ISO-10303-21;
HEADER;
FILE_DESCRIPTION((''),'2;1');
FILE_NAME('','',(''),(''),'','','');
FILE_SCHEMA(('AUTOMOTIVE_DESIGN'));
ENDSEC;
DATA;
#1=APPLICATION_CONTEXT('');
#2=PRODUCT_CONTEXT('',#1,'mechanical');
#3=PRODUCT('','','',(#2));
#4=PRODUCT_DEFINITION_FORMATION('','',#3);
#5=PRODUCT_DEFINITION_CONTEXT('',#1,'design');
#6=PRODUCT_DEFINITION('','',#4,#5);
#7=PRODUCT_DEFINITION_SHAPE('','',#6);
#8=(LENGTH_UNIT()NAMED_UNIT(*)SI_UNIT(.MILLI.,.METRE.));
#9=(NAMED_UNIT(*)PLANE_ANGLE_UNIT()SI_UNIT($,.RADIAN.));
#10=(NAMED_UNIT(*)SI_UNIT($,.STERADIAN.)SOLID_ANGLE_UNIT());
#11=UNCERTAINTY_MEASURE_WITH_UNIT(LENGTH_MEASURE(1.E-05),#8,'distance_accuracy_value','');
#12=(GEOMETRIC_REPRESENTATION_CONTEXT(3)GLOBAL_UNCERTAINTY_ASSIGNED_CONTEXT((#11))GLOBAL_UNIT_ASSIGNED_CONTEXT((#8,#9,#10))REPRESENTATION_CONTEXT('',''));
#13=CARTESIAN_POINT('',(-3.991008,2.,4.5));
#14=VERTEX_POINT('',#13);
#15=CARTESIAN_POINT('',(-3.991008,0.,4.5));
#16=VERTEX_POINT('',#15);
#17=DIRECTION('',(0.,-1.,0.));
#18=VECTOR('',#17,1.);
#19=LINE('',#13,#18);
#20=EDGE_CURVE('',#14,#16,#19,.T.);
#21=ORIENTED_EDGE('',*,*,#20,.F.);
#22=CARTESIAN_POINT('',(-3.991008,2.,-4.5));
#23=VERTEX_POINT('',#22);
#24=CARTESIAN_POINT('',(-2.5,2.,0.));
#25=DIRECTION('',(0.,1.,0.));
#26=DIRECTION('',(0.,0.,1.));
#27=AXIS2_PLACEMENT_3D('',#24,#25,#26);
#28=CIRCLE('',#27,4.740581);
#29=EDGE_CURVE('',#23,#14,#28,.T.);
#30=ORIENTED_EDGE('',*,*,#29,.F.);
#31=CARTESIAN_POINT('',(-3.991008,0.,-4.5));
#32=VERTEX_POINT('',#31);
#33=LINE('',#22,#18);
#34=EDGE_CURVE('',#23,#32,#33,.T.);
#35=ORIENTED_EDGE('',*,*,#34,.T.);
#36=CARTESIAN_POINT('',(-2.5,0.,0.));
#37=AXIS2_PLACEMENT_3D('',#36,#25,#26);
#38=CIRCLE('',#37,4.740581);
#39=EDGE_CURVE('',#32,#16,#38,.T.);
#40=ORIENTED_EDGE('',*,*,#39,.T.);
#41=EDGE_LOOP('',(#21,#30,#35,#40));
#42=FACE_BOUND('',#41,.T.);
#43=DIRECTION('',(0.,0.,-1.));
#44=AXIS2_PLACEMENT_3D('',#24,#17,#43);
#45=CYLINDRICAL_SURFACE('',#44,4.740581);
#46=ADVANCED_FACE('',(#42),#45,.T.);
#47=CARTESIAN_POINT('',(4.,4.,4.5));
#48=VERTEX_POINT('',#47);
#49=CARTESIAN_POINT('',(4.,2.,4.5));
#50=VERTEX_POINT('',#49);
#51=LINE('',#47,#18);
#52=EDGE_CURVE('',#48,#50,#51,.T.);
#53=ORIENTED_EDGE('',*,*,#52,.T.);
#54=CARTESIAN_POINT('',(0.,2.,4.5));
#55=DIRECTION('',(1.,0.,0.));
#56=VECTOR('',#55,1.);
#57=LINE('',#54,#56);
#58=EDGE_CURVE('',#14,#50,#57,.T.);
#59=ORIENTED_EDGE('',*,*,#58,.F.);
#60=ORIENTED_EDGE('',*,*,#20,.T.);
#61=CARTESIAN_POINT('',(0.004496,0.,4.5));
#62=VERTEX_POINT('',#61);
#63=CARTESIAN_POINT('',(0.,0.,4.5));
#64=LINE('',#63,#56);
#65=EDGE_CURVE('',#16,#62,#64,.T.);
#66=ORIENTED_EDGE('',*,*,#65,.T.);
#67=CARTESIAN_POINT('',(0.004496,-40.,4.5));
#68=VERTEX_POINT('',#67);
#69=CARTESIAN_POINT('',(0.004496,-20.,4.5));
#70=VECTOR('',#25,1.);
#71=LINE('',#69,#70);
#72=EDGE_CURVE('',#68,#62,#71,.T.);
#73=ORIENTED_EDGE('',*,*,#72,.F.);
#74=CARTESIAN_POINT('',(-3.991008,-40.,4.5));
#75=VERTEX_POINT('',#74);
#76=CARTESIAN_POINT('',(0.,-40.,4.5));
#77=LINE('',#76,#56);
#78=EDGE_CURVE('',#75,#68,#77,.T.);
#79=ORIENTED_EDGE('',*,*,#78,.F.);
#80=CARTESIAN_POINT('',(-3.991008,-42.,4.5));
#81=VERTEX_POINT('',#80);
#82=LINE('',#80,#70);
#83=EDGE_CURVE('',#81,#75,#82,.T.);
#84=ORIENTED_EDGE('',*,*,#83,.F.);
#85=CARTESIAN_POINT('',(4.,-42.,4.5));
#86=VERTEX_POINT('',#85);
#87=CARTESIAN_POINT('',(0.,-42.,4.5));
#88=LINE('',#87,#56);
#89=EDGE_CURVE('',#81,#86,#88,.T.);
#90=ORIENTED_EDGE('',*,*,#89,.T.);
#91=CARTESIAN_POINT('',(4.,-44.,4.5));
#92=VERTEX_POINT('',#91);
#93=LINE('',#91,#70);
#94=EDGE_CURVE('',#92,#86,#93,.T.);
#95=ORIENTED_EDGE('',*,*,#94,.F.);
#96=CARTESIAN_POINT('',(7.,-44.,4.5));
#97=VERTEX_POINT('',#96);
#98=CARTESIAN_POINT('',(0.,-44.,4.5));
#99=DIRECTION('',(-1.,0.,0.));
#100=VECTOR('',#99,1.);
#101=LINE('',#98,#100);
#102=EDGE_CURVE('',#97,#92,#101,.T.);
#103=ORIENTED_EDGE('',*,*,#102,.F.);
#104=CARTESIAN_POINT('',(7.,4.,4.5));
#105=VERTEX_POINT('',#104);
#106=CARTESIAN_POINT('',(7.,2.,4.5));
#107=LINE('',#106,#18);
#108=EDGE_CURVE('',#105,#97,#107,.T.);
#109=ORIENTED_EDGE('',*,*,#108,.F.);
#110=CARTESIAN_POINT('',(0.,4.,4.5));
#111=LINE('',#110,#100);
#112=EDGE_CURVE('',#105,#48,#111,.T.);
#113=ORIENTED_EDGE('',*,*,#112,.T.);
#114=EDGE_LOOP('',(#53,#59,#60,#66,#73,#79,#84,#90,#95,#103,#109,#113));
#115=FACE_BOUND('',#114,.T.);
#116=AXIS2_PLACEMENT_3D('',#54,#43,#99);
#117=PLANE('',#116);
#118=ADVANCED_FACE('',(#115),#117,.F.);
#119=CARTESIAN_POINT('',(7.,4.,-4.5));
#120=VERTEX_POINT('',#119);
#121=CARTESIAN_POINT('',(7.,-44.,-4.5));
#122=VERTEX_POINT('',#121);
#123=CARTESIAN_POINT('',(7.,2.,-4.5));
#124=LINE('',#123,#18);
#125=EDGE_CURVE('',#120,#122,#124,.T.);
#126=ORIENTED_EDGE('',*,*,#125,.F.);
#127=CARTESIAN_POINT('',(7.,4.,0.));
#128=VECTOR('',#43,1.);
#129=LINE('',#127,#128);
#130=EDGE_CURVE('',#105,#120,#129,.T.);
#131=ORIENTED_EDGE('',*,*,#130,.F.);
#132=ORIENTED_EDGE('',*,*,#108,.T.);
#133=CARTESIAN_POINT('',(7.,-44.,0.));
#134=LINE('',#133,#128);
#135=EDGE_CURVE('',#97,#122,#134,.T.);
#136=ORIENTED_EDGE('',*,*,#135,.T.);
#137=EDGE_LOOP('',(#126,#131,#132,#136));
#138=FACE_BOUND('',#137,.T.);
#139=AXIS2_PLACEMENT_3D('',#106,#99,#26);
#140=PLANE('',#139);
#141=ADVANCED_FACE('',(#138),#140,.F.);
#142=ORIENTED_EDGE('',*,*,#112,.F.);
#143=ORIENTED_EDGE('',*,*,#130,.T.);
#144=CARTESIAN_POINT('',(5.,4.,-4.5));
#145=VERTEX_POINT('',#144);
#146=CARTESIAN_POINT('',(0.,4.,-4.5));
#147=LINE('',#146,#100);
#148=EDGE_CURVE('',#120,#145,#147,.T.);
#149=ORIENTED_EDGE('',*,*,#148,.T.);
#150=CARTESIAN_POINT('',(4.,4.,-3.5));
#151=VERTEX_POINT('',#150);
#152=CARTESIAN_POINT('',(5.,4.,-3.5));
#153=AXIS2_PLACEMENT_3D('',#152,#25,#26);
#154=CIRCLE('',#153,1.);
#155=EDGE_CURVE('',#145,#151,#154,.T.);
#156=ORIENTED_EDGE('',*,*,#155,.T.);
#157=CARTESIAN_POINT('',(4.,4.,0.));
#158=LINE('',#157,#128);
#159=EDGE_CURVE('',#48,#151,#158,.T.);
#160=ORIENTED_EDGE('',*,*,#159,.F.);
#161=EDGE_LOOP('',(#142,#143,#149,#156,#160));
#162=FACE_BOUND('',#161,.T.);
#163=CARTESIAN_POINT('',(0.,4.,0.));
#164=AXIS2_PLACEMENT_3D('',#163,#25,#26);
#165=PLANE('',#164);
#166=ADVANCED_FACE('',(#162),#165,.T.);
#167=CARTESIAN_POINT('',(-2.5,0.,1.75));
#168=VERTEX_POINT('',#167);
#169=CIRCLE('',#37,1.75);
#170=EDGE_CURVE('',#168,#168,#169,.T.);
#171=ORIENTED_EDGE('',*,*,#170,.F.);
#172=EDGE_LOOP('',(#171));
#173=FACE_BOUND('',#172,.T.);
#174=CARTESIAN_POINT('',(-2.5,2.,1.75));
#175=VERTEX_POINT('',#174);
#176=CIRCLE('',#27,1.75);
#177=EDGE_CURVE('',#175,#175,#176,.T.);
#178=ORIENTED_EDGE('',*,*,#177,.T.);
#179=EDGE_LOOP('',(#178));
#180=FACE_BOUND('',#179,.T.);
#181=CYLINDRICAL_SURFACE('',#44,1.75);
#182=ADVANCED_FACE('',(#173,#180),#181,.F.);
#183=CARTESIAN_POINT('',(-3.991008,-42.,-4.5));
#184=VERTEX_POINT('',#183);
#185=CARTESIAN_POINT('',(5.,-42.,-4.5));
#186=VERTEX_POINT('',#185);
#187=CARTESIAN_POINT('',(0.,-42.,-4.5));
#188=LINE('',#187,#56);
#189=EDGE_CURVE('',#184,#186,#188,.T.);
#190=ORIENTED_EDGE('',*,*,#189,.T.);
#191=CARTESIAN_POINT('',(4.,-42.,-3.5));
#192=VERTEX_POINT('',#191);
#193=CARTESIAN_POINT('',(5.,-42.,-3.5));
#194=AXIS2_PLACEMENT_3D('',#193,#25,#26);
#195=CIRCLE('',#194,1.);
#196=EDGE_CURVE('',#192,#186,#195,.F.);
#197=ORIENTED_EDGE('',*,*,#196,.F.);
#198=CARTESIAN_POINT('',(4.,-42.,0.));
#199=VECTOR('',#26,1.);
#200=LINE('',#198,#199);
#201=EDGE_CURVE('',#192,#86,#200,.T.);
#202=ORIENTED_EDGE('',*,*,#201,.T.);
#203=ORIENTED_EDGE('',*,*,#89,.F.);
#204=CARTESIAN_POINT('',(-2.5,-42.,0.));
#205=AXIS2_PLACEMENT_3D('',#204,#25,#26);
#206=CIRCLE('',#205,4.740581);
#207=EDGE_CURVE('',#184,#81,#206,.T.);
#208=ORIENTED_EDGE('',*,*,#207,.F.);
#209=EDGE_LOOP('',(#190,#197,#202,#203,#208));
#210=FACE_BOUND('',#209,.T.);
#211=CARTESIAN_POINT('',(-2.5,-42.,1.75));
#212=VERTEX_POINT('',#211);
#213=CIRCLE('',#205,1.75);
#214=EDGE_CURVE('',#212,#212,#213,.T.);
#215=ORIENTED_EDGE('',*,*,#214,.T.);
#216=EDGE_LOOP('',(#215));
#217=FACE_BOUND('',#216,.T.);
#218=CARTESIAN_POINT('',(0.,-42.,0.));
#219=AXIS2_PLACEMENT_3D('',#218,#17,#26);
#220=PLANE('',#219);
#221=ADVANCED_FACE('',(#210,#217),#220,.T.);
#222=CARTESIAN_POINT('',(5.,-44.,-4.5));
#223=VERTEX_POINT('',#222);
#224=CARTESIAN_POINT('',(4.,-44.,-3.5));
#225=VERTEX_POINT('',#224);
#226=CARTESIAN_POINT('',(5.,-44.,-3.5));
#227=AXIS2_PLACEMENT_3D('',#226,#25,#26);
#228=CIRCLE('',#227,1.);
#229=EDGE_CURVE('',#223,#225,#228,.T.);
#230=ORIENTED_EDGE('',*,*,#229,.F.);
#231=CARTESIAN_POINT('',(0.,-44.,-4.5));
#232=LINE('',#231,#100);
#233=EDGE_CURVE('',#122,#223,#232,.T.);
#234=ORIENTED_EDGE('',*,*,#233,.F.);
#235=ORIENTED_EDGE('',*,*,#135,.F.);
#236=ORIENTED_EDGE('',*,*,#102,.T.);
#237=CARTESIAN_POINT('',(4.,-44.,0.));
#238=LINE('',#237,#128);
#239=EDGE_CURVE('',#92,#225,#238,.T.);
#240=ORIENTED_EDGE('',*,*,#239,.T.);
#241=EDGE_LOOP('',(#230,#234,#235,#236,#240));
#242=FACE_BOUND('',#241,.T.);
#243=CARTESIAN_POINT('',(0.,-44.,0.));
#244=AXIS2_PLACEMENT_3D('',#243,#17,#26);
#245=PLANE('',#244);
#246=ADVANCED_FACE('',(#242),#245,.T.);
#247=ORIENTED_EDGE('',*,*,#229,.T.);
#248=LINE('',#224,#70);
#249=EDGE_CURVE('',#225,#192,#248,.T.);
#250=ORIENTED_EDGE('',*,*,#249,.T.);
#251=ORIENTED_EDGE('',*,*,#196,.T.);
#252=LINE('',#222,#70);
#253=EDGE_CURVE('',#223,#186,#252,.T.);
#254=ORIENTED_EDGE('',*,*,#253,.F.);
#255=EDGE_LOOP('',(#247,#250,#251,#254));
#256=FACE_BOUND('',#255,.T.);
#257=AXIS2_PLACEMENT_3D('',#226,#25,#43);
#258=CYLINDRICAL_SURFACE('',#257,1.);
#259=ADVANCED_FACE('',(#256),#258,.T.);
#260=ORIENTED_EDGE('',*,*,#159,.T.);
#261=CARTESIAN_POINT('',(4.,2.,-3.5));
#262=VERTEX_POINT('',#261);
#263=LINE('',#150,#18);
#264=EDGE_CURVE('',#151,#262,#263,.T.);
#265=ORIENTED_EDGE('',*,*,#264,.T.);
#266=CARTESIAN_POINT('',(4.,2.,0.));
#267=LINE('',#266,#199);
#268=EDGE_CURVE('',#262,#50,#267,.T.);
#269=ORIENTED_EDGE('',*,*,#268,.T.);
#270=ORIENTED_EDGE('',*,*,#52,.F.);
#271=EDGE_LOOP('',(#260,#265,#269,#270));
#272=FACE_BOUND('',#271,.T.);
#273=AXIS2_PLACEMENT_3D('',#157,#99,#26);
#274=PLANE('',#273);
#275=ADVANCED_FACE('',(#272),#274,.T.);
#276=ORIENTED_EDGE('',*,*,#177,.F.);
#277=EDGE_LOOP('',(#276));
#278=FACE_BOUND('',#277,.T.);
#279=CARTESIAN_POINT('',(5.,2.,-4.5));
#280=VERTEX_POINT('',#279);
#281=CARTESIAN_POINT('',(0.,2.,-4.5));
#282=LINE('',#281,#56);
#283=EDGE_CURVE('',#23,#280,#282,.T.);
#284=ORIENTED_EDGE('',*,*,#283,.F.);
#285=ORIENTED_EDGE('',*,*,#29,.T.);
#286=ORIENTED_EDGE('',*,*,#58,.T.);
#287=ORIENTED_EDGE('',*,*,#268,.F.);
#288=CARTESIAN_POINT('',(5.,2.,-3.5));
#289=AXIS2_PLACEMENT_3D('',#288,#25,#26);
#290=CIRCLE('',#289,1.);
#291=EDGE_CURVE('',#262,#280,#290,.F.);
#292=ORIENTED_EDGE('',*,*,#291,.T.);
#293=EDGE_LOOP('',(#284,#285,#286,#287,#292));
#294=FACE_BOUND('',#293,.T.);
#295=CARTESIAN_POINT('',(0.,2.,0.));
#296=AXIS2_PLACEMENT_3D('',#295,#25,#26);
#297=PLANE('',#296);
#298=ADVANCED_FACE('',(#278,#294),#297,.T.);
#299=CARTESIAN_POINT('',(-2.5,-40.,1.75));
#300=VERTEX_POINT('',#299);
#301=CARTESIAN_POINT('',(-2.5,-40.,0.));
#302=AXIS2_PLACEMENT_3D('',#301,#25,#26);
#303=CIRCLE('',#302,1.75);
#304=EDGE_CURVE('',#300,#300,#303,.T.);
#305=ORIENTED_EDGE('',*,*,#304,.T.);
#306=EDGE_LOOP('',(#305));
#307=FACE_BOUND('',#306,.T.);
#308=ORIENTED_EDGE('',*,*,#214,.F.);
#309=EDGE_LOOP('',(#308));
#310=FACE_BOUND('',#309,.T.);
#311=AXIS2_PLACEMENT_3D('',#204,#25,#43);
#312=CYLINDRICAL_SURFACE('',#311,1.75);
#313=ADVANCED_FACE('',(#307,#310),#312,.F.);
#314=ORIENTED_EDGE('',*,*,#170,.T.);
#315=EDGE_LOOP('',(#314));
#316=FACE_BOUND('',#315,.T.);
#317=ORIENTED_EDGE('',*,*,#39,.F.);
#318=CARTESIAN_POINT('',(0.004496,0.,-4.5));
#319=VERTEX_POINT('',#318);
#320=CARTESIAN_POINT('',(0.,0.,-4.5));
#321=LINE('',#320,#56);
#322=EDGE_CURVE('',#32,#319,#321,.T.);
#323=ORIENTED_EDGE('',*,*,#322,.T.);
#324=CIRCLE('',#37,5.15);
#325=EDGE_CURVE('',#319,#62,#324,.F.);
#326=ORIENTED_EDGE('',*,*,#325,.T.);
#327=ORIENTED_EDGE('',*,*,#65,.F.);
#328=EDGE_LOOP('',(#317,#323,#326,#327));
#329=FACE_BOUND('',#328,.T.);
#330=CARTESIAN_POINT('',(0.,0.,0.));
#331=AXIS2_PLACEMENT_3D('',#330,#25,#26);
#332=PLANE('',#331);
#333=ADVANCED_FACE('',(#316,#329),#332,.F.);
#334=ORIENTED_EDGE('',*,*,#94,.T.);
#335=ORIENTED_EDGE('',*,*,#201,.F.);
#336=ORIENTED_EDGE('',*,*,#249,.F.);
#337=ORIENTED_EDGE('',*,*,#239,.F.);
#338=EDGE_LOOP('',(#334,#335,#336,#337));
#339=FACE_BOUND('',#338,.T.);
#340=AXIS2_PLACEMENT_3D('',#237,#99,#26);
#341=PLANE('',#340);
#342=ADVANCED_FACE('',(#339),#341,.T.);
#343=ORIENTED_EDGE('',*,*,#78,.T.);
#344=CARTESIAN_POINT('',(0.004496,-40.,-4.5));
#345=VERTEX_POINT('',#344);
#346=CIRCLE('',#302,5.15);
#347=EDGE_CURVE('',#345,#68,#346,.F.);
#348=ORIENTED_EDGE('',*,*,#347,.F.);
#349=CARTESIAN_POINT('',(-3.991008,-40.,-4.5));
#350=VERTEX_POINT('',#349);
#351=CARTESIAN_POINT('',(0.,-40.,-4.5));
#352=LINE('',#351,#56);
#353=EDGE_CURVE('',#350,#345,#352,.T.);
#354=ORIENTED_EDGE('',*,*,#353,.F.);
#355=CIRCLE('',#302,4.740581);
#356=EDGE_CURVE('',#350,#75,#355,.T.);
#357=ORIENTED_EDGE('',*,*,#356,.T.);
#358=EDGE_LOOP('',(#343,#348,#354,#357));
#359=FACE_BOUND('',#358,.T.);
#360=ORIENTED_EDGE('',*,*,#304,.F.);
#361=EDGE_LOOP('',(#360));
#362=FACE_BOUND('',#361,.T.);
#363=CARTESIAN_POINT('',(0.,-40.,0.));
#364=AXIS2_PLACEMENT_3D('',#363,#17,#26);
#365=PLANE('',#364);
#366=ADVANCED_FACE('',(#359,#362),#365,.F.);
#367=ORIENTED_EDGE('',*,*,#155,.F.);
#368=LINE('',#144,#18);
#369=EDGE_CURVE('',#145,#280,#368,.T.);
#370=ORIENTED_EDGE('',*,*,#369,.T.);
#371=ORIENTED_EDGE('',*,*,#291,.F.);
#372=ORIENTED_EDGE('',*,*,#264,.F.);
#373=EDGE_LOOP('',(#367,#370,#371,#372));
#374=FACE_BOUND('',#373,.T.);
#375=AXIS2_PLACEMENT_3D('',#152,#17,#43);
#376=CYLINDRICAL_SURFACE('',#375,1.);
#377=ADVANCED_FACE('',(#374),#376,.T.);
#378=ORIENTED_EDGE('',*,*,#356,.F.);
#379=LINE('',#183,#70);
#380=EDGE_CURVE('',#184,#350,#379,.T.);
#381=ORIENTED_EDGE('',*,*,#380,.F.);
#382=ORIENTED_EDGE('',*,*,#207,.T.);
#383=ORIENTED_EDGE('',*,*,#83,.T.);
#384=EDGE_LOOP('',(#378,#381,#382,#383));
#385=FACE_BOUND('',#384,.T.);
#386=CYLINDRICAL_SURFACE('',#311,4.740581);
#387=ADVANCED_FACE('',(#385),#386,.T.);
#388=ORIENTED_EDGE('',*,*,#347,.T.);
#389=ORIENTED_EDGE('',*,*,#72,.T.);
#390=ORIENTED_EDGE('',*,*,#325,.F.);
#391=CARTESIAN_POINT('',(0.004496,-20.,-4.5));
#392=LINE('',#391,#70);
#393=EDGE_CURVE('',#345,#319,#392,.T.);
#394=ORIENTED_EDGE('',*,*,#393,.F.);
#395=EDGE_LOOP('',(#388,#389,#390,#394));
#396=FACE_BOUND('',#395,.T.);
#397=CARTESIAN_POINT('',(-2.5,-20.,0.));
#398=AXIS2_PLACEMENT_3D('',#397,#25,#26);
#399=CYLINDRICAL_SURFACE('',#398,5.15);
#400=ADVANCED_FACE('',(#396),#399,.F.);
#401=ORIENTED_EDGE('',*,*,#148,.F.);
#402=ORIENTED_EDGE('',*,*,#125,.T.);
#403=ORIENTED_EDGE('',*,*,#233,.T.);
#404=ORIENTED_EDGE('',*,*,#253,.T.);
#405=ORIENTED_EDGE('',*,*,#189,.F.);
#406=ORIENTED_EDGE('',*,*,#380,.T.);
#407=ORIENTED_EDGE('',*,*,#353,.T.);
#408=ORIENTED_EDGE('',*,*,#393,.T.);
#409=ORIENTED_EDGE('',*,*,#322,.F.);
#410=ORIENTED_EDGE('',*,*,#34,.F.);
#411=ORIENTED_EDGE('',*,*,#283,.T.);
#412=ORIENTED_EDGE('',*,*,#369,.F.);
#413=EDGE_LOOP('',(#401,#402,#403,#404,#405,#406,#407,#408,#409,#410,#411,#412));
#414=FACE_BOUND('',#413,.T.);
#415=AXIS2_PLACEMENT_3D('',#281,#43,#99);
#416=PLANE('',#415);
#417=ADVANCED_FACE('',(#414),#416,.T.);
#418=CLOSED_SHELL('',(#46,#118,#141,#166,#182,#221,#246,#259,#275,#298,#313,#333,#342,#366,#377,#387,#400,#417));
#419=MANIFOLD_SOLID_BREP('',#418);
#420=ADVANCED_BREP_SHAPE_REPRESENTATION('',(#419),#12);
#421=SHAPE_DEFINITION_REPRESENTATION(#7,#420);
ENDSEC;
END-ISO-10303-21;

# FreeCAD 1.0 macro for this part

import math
import FreeCAD as App
import Part
import Sketcher
Q = App.Units.Quantity

doc = App.newDocument("Part")
body = doc.addObject("PartDesign::Body", "Body")

# Sketch on XZ plane
sketch1 = body.newObject("Sketcher::SketchObject", "Sketch")
sketch1.AttachmentSupport = (doc.getObject("XZ_Plane"), [""])
sketch1.MapMode = "FlatFace"
sketch1.addGeometry([
    Part.ArcOfCircle(Part.Circle(App.Vector(-2.5, 0, 0), App.Vector(0, 0, 1), 4.740581), math.radians(108.331847), math.radians(251.668153)),  # 0
    Part.LineSegment(App.Vector(-3.991008, 4.5, 0), App.Vector(7, 4.5, 0)),  # 1
    Part.LineSegment(App.Vector(7, 4.5, 0), App.Vector(7, -4.5, 0)),  # 2
    Part.LineSegment(App.Vector(7, -4.5, 0), App.Vector(-3.991008, -4.5, 0)),  # 3
    Part.Circle(App.Vector(-2.5, 0, 0), App.Vector(0, 0, 1), 1.75),  # 4
], False)
sketch1.addConstraint([
    Sketcher.Constraint("Coincident", 0, 1, 1, 1),
    Sketcher.Constraint("Coincident", 1, 2, 2, 1),
    Sketcher.Constraint("Coincident", 2, 2, 3, 1),
    Sketcher.Constraint("Coincident", 3, 2, 0, 2),
    Sketcher.Constraint("Horizontal", 1),
    Sketcher.Constraint("Vertical", 2),
    Sketcher.Constraint("Horizontal", 3),
    Sketcher.Constraint("Coincident", 4, 3, 0, 3),
    Sketcher.Constraint("Symmetric", 0, 1, 3, 2, -1),
    Sketcher.Constraint("Diameter", 4, Q("3.5 mm")),
    Sketcher.Constraint("DistanceY", 2, 2, 2, 1, Q("9 mm")),
    Sketcher.Constraint("DistanceX", -1, 1, 1, 2, Q("7 mm")),
    Sketcher.Constraint("DistanceX", 0, 3, -1, 1, Q("2.5 mm")),
    Sketcher.Constraint("Radius", 0, Q("4.740581 mm")),
])
pad1 = body.newObject("PartDesign::Pad", "Pad")
pad1.Profile = sketch1
pad1.Length = 2
pad1.Reversed = True

# Sketch on XZ plane
sketch2 = body.newObject("Sketcher::SketchObject", "Sketch001")
sketch2.AttachmentSupport = (doc.getObject("XZ_Plane"), [""])
sketch2.MapMode = "FlatFace"
sketch2.addGeometry([
    Part.ArcOfCircle(Part.Circle(App.Vector(-2.5, 0, 0), App.Vector(0, 0, 1), 5.15), math.radians(-60.901671), math.radians(60.901671)),
    Part.LineSegment(App.Vector(0.004496, 4.5, 0), App.Vector(7, 4.5, 0)),
    Part.LineSegment(App.Vector(7, 4.5, 0), App.Vector(7, -4.5, 0)),
    Part.LineSegment(App.Vector(7, -4.5, 0), App.Vector(0.004496, -4.5, 0)),
], False)
sketch2.addConstraint([
    Sketcher.Constraint("Coincident", 0, 2, 1, 1),
    Sketcher.Constraint("Coincident", 1, 2, 2, 1),
    Sketcher.Constraint("Coincident", 2, 2, 3, 1),
    Sketcher.Constraint("Coincident", 3, 2, 0, 1),
    Sketcher.Constraint("Horizontal", 1),
    Sketcher.Constraint("Vertical", 2),
    Sketcher.Constraint("Horizontal", 3),
    Sketcher.Constraint("Symmetric", 0, 2, 3, 2, -1),
    Sketcher.Constraint("DistanceY", 2, 2, 2, 1, Q("9 mm")),
    Sketcher.Constraint("Radius", 0, Q("5.15 mm")),
    Sketcher.Constraint("DistanceX", -1, 1, 1, 2, Q("7 mm")),
    Sketcher.Constraint("DistanceX", 0, 3, -1, 1, Q("2.5 mm")),
])
pad2 = body.newObject("PartDesign::Pad", "Pad001")
pad2.Profile = sketch2
pad2.Length = 20

# Sketch on XZ plane
sketch3 = body.newObject("Sketcher::SketchObject", "Sketch002")
sketch3.AttachmentSupport = (doc.getObject("XZ_Plane"), [""])
sketch3.MapMode = "FlatFace"
sketch3.addGeometry([
    Part.LineSegment(App.Vector(7, -4.5, 0), App.Vector(5, -4.5, 0)),  # 0
    Part.ArcOfCircle(Part.Circle(App.Vector(5, -3.5, 0), App.Vector(0, 0, 1), 1), math.radians(-180), math.radians(-90)),  # 1
    Part.LineSegment(App.Vector(4, -3.5, 0), App.Vector(4, 4.5, 0)),  # 2
    Part.LineSegment(App.Vector(4, 4.5, 0), App.Vector(7, 4.5, 0)),  # 3
    Part.LineSegment(App.Vector(7, 4.5, 0), App.Vector(7, -4.5, 0)),  # 4
], False)
sketch3.addConstraint([
    Sketcher.Constraint("Tangent", 0, 2, 1, 2),
    Sketcher.Constraint("Tangent", 1, 1, 2, 1),
    Sketcher.Constraint("Coincident", 2, 2, 3, 1),
    Sketcher.Constraint("Coincident", 3, 2, 4, 1),
    Sketcher.Constraint("Coincident", 4, 2, 0, 1),
    Sketcher.Constraint("Horizontal", 0),
    Sketcher.Constraint("Vertical", 2),
    Sketcher.Constraint("Horizontal", 3),
    Sketcher.Constraint("Vertical", 4),
    Sketcher.Constraint("Radius", 1, Q("1 mm")),
    Sketcher.Constraint("DistanceX", 0, 2, 0, 1, Q("2 mm")),
    Sketcher.Constraint("DistanceY", 2, 1, 2, 2, Q("8 mm")),
    Sketcher.Constraint("DistanceX", -1, 1, 1, 3, Q("5 mm")),
    Sketcher.Constraint("DistanceY", 1, 3, -1, 1, Q("3.5 mm")),
])
pad3 = body.newObject("PartDesign::Pad", "Pad002")
pad3.Profile = sketch3
pad3.Length = 4
pad3.Reversed = True
body2 = doc.addObject("PartDesign::Body", "Body001")
doc.recompute()

body2.BaseFeature = body
doc.recompute()

mirroring = doc.addObject("Part::Mirroring", "Mirroring")
mirroring.Source = body
mirroring.Base = App.Vector(0, -20, 0)
mirroring.Normal = App.Vector(0, 1, 0)
body3 = doc.addObject("PartDesign::Body", "Body002")
body3.BaseFeature = mirroring
boolean = body2.newObject("PartDesign::Boolean", "Boolean")
boolean.Type = "Fuse"
boolean.addObjects([body3])
doc.recompute()
mirroring.Visibility = False

doc.recompute()
